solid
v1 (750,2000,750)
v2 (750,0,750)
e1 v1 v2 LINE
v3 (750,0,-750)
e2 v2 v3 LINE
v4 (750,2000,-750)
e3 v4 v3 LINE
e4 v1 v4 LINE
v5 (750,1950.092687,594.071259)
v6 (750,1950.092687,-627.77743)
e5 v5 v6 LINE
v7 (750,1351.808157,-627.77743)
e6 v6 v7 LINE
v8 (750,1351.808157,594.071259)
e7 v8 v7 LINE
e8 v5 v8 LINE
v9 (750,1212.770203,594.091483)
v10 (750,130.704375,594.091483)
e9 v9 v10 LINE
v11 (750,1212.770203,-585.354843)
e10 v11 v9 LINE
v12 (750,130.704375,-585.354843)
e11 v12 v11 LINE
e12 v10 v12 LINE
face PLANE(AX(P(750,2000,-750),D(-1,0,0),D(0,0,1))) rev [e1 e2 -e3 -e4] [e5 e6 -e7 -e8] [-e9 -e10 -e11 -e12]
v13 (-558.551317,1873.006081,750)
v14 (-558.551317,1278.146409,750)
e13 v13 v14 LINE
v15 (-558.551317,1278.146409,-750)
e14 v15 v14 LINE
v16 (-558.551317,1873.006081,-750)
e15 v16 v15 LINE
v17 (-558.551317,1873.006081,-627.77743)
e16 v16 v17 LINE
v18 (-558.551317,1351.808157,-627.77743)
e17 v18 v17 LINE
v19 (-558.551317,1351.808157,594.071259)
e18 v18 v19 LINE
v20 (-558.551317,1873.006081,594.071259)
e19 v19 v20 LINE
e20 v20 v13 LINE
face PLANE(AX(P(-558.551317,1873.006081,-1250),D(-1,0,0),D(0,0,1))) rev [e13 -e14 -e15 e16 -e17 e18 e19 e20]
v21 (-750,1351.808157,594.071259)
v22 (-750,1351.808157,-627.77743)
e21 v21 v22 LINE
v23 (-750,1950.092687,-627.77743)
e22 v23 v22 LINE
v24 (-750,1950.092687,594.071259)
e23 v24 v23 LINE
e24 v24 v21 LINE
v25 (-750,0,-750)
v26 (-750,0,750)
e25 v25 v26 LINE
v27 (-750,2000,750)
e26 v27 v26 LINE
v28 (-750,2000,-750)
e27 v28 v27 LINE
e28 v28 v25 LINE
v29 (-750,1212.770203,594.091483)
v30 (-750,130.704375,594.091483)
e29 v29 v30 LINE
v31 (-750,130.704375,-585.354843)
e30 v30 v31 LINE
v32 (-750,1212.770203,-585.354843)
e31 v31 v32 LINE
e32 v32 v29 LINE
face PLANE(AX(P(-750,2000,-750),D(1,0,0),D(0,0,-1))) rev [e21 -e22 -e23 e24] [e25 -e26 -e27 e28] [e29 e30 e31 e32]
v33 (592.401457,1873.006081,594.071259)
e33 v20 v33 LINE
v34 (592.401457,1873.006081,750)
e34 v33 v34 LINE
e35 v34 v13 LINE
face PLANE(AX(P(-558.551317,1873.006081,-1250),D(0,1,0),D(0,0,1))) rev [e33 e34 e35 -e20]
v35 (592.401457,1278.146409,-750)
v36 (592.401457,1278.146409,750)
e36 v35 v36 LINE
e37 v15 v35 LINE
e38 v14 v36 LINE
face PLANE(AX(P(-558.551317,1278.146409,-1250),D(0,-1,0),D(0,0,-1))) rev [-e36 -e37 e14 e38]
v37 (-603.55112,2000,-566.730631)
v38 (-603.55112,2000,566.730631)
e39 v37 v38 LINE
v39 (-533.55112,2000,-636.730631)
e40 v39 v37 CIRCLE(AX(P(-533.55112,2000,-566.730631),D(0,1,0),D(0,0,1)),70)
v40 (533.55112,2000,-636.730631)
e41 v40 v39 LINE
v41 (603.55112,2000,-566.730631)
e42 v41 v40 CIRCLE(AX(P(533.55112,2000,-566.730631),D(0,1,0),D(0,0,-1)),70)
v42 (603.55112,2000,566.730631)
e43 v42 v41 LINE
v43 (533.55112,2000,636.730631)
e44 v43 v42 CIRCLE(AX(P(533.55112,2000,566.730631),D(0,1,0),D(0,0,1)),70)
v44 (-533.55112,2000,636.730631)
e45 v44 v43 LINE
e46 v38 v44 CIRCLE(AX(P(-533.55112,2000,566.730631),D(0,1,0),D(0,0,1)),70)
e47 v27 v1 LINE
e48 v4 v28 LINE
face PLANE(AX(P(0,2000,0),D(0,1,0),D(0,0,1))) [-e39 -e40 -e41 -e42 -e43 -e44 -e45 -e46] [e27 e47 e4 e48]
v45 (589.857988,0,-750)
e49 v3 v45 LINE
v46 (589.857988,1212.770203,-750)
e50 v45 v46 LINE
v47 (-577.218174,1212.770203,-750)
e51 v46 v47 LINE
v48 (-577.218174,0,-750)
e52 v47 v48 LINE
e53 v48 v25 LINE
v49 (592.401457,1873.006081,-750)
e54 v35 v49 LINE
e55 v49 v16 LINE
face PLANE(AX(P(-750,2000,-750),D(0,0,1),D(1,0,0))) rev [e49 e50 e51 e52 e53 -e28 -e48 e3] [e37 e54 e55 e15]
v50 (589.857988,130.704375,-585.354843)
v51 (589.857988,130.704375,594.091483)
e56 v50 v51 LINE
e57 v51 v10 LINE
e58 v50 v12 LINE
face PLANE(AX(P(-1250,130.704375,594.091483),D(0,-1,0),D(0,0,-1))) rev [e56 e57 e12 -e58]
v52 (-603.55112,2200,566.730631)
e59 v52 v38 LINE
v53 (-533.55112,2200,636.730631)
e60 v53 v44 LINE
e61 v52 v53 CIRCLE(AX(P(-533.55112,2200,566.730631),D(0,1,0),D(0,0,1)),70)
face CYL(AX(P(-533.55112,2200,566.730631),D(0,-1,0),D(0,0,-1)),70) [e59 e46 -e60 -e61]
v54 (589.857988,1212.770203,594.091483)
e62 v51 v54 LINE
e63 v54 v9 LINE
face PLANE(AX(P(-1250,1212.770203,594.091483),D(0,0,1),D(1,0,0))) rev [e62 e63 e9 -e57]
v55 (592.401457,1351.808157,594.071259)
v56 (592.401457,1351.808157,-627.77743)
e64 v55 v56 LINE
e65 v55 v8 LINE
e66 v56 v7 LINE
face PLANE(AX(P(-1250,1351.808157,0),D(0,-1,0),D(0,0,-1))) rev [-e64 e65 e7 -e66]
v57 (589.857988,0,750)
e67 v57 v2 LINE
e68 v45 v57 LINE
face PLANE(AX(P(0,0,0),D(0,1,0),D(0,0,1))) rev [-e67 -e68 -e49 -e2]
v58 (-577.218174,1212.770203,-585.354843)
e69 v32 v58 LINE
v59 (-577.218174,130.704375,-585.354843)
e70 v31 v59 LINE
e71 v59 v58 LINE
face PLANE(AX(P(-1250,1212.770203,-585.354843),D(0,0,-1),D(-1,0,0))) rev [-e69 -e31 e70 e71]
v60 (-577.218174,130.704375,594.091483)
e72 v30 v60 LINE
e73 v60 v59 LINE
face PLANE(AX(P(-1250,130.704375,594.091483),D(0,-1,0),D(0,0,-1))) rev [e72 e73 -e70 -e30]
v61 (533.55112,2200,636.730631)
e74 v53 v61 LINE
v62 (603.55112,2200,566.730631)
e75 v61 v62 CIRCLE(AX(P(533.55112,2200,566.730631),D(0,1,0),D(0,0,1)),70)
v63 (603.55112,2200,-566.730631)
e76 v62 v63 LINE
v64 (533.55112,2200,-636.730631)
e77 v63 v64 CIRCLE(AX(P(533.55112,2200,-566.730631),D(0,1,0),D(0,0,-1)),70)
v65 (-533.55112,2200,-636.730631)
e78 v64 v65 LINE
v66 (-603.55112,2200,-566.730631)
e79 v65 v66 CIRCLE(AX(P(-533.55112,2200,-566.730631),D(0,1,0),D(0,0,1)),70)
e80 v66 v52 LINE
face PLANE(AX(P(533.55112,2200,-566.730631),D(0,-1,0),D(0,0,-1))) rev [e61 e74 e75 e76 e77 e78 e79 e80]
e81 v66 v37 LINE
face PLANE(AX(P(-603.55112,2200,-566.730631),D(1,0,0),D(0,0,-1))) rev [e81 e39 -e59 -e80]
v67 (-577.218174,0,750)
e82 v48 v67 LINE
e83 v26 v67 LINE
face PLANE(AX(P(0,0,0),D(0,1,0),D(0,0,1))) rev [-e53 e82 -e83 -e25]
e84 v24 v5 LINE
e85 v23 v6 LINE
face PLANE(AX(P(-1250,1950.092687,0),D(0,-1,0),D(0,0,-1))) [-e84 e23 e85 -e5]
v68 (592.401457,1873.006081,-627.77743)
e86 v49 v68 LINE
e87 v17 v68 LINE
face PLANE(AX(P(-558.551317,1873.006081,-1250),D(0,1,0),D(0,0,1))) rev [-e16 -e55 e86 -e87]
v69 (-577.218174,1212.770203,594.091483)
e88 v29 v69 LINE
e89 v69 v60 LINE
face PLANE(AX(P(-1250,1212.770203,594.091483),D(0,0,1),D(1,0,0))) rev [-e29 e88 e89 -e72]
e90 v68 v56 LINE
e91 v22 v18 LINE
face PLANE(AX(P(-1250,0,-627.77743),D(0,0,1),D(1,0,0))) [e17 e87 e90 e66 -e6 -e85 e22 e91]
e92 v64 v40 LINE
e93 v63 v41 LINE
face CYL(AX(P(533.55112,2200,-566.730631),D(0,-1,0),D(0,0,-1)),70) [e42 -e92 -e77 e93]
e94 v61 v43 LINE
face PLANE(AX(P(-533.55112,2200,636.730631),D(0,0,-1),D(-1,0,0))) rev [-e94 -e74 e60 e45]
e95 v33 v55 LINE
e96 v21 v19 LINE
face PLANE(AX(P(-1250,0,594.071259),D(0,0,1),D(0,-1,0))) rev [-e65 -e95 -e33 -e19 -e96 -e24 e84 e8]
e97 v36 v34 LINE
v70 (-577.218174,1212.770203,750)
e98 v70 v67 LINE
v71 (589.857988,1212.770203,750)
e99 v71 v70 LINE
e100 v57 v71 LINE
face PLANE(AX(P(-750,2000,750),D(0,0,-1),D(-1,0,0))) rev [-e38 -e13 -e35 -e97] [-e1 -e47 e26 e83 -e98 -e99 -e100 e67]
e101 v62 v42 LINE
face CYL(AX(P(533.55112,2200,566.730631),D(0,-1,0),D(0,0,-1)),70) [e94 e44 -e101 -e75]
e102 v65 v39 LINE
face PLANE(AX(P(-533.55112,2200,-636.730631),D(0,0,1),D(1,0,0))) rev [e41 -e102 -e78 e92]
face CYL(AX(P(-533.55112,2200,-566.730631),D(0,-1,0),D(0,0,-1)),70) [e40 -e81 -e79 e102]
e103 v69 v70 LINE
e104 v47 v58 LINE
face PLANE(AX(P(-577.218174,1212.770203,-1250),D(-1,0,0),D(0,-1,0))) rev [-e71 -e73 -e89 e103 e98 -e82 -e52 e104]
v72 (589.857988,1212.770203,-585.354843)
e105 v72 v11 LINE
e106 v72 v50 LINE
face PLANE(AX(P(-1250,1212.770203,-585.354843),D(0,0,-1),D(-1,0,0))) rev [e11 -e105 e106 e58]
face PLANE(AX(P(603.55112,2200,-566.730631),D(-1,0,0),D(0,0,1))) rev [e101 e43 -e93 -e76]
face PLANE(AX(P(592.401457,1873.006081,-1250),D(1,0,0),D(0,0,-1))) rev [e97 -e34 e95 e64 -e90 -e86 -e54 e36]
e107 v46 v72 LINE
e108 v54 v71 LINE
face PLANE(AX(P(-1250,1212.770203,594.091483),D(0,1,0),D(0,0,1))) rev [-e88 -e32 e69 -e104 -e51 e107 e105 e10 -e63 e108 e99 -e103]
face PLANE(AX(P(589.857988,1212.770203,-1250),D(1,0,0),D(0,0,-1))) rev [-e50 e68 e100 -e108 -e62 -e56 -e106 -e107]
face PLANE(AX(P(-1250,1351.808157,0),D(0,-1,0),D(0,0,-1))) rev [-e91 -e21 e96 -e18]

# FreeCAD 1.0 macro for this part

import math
import FreeCAD as App
import Part
import Sketcher

V = App.Vector
Q = App.Units.Quantity


def add_polygon(sketch, points):
    """Adds a closed chain of lines whose ends are joined by coincident constraints."""
    first, n = sketch.GeometryCount, len(points)
    for a, b in zip(points, points[1:] + points[:1]):
        sketch.addGeometry(Part.LineSegment(App.Vector(*a, 0), App.Vector(*b, 0)), False)
    for i in range(n):
        sketch.addConstraint(Sketcher.Constraint("Coincident", first + i, 2, first + (i + 1) % n, 1))

doc = App.newDocument("Part")
body = doc.addObject("PartDesign::Body", "Body")

# Sketch on XZ plane
sketch1 = body.newObject("Sketcher::SketchObject", "Sketch")
sketch1.AttachmentSupport = (doc.getObject("XZ_Plane"), [""])
sketch1.MapMode = "FlatFace"
add_polygon(sketch1, [(-750, -750), (-750, 750), (750, 750), (750, -750)])  # lines 0-3
sketch1.addConstraint(Sketcher.Constraint("Vertical", 0))
sketch1.addConstraint(Sketcher.Constraint("Horizontal", 1))
sketch1.addConstraint(Sketcher.Constraint("Vertical", 2))
sketch1.addConstraint(Sketcher.Constraint("Horizontal", 3))
sketch1.addConstraint(Sketcher.Constraint("Symmetric", 0, 2, 2, 2, -1, 1))
sketch1.addConstraint(Sketcher.Constraint("Equal", 3, 0))
sketch1.addConstraint(Sketcher.Constraint("DistanceX", 1, 1, 1, 2, Q("1500 mm")))
pad1 = body.newObject("PartDesign::Pad", "Pad")
pad1.Profile = sketch1
pad1.Length = 2000
pad1.Reversed = True

# Sketch on XY plane
sketch2 = body.newObject("Sketcher::SketchObject", "Sketch001")
sketch2.AttachmentSupport = (doc.getObject("XY_Plane"), [""])
sketch2.MapMode = "FlatFace"
sketch2.AttachmentOffset = App.Placement(V(0, 0, 750), App.Rotation())
add_polygon(sketch2, [(-558.551317, 1873.006081), (-558.551317, 1278.146409), (592.401457, 1278.146409), (592.401457, 1873.006081)])  # lines 0-3
sketch2.addConstraint(Sketcher.Constraint("Vertical", 0))
sketch2.addConstraint(Sketcher.Constraint("Horizontal", 1))
sketch2.addConstraint(Sketcher.Constraint("Vertical", 2))
sketch2.addConstraint(Sketcher.Constraint("Horizontal", 3))
sketch2.addConstraint(Sketcher.Constraint("DistanceY", 0, 2, 0, 1, Q("594.859671 mm")))
sketch2.addConstraint(Sketcher.Constraint("DistanceX", 1, 1, 1, 2, Q("1150.952775 mm")))
sketch2.addConstraint(Sketcher.Constraint("DistanceY", -1, 1, 0, 2, Q("1278.146409 mm")))
sketch2.addConstraint(Sketcher.Constraint("DistanceX", 0, 2, -1, 1, Q("558.551317 mm")))
pocket1 = body.newObject("PartDesign::Pocket", "Pocket")
pocket1.Profile = sketch2
pocket1.Length = 2000

# Sketch on YZ plane
sketch3 = body.newObject("Sketcher::SketchObject", "Sketch002")
sketch3.AttachmentSupport = (doc.getObject("YZ_Plane"), [""])
sketch3.MapMode = "FlatFace"
sketch3.AttachmentOffset = App.Placement(V(0, 0, 750), App.Rotation())
add_polygon(sketch3, [(1950.092687, 594.071259), (1351.808157, 594.071259), (1351.808157, -627.77743), (1950.092687, -627.77743)])  # lines 0-3
sketch3.addConstraint(Sketcher.Constraint("Horizontal", 0))
sketch3.addConstraint(Sketcher.Constraint("Vertical", 1))
sketch3.addConstraint(Sketcher.Constraint("Horizontal", 2))
sketch3.addConstraint(Sketcher.Constraint("Vertical", 3))
sketch3.addConstraint(Sketcher.Constraint("DistanceX", 0, 2, 0, 1, Q("598.28453 mm")))
sketch3.addConstraint(Sketcher.Constraint("DistanceY", 1, 2, 1, 1, Q("1221.848689 mm")))
sketch3.addConstraint(Sketcher.Constraint("DistanceY", -1, 1, 0, 2, Q("594.071259 mm")))
sketch3.addConstraint(Sketcher.Constraint("DistanceX", -1, 1, 0, 2, Q("1351.808157 mm")))
pocket2 = body.newObject("PartDesign::Pocket", "Pocket001")
pocket2.Profile = sketch3
pocket2.Length = 2000

# Sketch on YZ plane
sketch4 = body.newObject("Sketcher::SketchObject", "Sketch003")
sketch4.AttachmentSupport = (doc.getObject("YZ_Plane"), [""])
sketch4.MapMode = "FlatFace"
sketch4.AttachmentOffset = App.Placement(V(0, 0, 750), App.Rotation())
add_polygon(sketch4, [(1212.770203, 594.091483), (130.704375, 594.091483), (130.704375, -585.354843), (1212.770203, -585.354843)])  # lines 0-3
sketch4.addConstraint(Sketcher.Constraint("Horizontal", 0))
sketch4.addConstraint(Sketcher.Constraint("Vertical", 1))
sketch4.addConstraint(Sketcher.Constraint("Horizontal", 2))
sketch4.addConstraint(Sketcher.Constraint("Vertical", 3))
sketch4.addConstraint(Sketcher.Constraint("DistanceX", 0, 2, 0, 1, Q("1082.065828 mm")))
sketch4.addConstraint(Sketcher.Constraint("DistanceY", 1, 2, 1, 1, Q("1179.446326 mm")))
sketch4.addConstraint(Sketcher.Constraint("DistanceX", -1, 1, 0, 2, Q("130.704375 mm")))
sketch4.addConstraint(Sketcher.Constraint("DistanceY", -1, 1, 0, 2, Q("594.091483 mm")))
pocket3 = body.newObject("PartDesign::Pocket", "Pocket002")
pocket3.Profile = sketch4
pocket3.Length = 2000

# Sketch on XY plane
sketch5 = body.newObject("Sketcher::SketchObject", "Sketch004")
sketch5.AttachmentSupport = (doc.getObject("XY_Plane"), [""])
sketch5.MapMode = "FlatFace"
sketch5.AttachmentOffset = App.Placement(V(0, 0, 750), App.Rotation())
add_polygon(sketch5, [(-577.218174, 1212.770203), (-577.218174, 0), (589.857988, 0), (589.857988, 1212.770203)])  # lines 0-3
sketch5.addConstraint(Sketcher.Constraint("Vertical", 0))
sketch5.addConstraint(Sketcher.Constraint("Horizontal", 1))
sketch5.addConstraint(Sketcher.Constraint("Vertical", 2))
sketch5.addConstraint(Sketcher.Constraint("Horizontal", 3))
sketch5.addConstraint(Sketcher.Constraint("PointOnObject", 0, 2, -1))
sketch5.addConstraint(Sketcher.Constraint("DistanceX", 1, 1, 1, 2, Q("1167.076161 mm")))
sketch5.addConstraint(Sketcher.Constraint("DistanceY", 0, 2, 0, 1, Q("1212.770203 mm")))
sketch5.addConstraint(Sketcher.Constraint("DistanceX", 0, 2, -1, 1, Q("577.218174 mm")))
pocket4 = body.newObject("PartDesign::Pocket", "Pocket003")
pocket4.Profile = sketch5
pocket4.Length = 2000

# Sketch on XZ plane
sketch6 = body.newObject("Sketcher::SketchObject", "Sketch005")
sketch6.AttachmentSupport = (doc.getObject("XZ_Plane"), [""])
sketch6.MapMode = "FlatFace"
sketch6.AttachmentOffset = App.Placement(V(0, 0, -2000), App.Rotation())
sketch6.addGeometry(Part.LineSegment(V(533.55112, -636.730631, 0), V(-533.55112, -636.730631, 0)), False)
sketch6.addGeometry(Part.ArcOfCircle(Part.Circle(V(-533.55112, -566.730631, 0), V(0, 0, 1), 70), math.radians(180), math.radians(270)), False)
sketch6.addGeometry(Part.LineSegment(V(-603.55112, -566.730631, 0), V(-603.55112, 566.730631, 0)), False)
sketch6.addGeometry(Part.ArcOfCircle(Part.Circle(V(-533.55112, 566.730631, 0), V(0, 0, 1), 70), math.radians(90), math.radians(180)), False)
sketch6.addGeometry(Part.LineSegment(V(-533.55112, 636.730631, 0), V(533.55112, 636.730631, 0)), False)
sketch6.addGeometry(Part.ArcOfCircle(Part.Circle(V(533.55112, 566.730631, 0), V(0, 0, 1), 70), math.radians(0), math.radians(90)), False)
sketch6.addGeometry(Part.LineSegment(V(603.55112, 566.730631, 0), V(603.55112, -566.730631, 0)), False)
sketch6.addGeometry(Part.ArcOfCircle(Part.Circle(V(533.55112, -566.730631, 0), V(0, 0, 1), 70), math.radians(-90), math.radians(0)), False)
sketch6.addConstraint(Sketcher.Constraint("Tangent", 0, 2, 1, 2))
sketch6.addConstraint(Sketcher.Constraint("Tangent", 1, 1, 2, 1))
sketch6.addConstraint(Sketcher.Constraint("Tangent", 2, 2, 3, 2))
sketch6.addConstraint(Sketcher.Constraint("Tangent", 3, 1, 4, 1))
sketch6.addConstraint(Sketcher.Constraint("Tangent", 4, 2, 5, 2))
sketch6.addConstraint(Sketcher.Constraint("Tangent", 5, 1, 6, 1))
sketch6.addConstraint(Sketcher.Constraint("Tangent", 6, 2, 7, 2))
sketch6.addConstraint(Sketcher.Constraint("Tangent", 7, 1, 0, 1))
sketch6.addConstraint(Sketcher.Constraint("Horizontal", 0))
sketch6.addConstraint(Sketcher.Constraint("Vertical", 2))
sketch6.addConstraint(Sketcher.Constraint("Horizontal", 4))
sketch6.addConstraint(Sketcher.Constraint("Vertical", 6))
sketch6.addConstraint(Sketcher.Constraint("Equal", 1, 3))
sketch6.addConstraint(Sketcher.Constraint("Equal", 3, 5))
sketch6.addConstraint(Sketcher.Constraint("Equal", 5, 7))
sketch6.addConstraint(Sketcher.Constraint("Symmetric", 1, 3, 5, 3, -1, 1))
sketch6.addConstraint(Sketcher.Constraint("Radius", 1, Q("70 mm")))
sketch6.addConstraint(Sketcher.Constraint("DistanceX", 0, 2, 0, 1, Q("1067.102239 mm")))
sketch6.addConstraint(Sketcher.Constraint("DistanceY", 2, 1, 2, 2, Q("1133.461263 mm")))
pad2 = body.newObject("PartDesign::Pad", "Pad001")
pad2.Profile = sketch6
pad2.Length = 200
pad2.Reversed = True

doc.recompute()
